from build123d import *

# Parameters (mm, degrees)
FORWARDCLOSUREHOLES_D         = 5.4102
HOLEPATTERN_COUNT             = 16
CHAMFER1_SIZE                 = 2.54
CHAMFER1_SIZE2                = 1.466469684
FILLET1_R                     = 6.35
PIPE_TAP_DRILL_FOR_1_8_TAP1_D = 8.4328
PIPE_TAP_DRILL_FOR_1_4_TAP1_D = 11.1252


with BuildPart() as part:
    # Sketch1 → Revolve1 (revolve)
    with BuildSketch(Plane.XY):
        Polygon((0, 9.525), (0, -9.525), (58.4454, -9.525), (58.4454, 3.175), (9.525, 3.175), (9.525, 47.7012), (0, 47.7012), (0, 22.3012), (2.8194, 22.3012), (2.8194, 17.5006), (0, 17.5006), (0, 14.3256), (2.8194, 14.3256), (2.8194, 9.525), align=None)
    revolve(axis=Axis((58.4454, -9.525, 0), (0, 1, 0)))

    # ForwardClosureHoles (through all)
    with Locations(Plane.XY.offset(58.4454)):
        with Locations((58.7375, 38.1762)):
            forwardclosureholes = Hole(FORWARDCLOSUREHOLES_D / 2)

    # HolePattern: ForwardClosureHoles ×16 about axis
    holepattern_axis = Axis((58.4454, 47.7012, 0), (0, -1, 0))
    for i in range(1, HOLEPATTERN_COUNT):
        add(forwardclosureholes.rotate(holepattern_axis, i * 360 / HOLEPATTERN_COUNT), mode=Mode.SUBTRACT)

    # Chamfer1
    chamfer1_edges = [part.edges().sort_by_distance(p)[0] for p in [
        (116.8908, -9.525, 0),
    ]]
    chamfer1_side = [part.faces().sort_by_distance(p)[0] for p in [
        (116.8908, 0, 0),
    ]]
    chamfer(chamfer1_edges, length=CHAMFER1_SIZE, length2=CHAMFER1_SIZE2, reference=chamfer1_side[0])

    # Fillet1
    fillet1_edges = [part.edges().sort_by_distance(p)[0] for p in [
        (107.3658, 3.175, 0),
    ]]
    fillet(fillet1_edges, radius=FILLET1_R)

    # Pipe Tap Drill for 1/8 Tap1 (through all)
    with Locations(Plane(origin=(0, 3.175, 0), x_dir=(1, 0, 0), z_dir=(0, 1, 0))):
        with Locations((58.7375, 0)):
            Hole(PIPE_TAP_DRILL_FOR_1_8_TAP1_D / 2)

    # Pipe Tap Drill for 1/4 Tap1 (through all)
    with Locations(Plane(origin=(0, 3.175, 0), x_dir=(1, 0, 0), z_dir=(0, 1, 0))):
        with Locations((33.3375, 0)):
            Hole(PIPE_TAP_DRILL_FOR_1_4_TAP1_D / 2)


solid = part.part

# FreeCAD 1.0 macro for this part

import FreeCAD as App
import Part
import Sketcher

V = App.Vector
Q = App.Units.Quantity


def edges_at(feature, points):
    """Names of the edges that pass closest to the given points."""
    edges = feature.Shape.Edges
    near = lambda p: min(range(len(edges)), key=lambda i: edges[i].distToShape(Part.Vertex(*p))[0])
    return sorted({f"Edge{near(p) + 1}" for p in points})


def add_polygon(sketch, points):
    """Adds a closed chain of lines whose ends are joined by coincident constraints."""
    first, n = sketch.GeometryCount, len(points)
    for a, b in zip(points, points[1:] + points[:1]):
        sketch.addGeometry(Part.LineSegment(App.Vector(*a, 0), App.Vector(*b, 0)), False)
    for i in range(n):
        sketch.addConstraint(Sketcher.Constraint("Coincident", first + i, 2, first + (i + 1) % n, 1))

doc = App.newDocument("Part")
body = doc.addObject("PartDesign::Body", "Body")

sketch1 = body.newObject("Sketcher::SketchObject", "Sketch")
sketch1.AttachmentSupport = (doc.getObject("XY_Plane"), [""])
sketch1.MapMode = "FlatFace"
add_polygon(sketch1, [(0, 9.5), (0, -9.5), (58.4, -9.5), (58.4, 3.2), (9.5, 3.2), (9.5, 47.7), (0, 47.7), (0, 22.3), (2.8, 22.3), (2.8, 17.5), (0, 17.5), (0, 14.3), (2.8, 14.3), (2.8, 9.5)])
sketch1.addGeometry(Part.LineSegment(V(58.4, -9.5, 0), V(58.4, 47.7, 0)), True)
sketch1.addConstraint([
    Sketcher.Constraint("Vertical", 0),
    Sketcher.Constraint("Horizontal", 1),
    Sketcher.Constraint("Vertical", 2),
    Sketcher.Constraint("Horizontal", 3),
    Sketcher.Constraint("Vertical", 4),
    Sketcher.Constraint("Horizontal", 5),
    Sketcher.Constraint("Vertical", 6),
    Sketcher.Constraint("Horizontal", 7),
    Sketcher.Constraint("Vertical", 8),
    Sketcher.Constraint("Horizontal", 9),
    Sketcher.Constraint("Vertical", 10),
    Sketcher.Constraint("Horizontal", 11),
    Sketcher.Constraint("Vertical", 12),
    Sketcher.Constraint("Horizontal", 13),
    Sketcher.Constraint("Vertical", 14),
    Sketcher.Constraint("Coincident", 14, 1, 1, 2),
    Sketcher.Constraint("Symmetric", 0, 2, 13, 2, -1, 1),
    Sketcher.Constraint("PointOnObject", 5, 2, -2),
    Sketcher.Constraint("PointOnObject", 9, 2, -2),
    Sketcher.Constraint("Horizontal", 5, 2, 14, 2),
    Sketcher.Constraint("Vertical", 8, 2, 11, 2),
    Sketcher.Constraint("Equal", 8, 12),
    Sketcher.Constraint("DistanceY", 6, 2, 6, 1, Q("1 in")),
    Sketcher.Constraint("DistanceY", 2, 1, 2, 2, Q("0.5 in")),
    Sketcher.Constraint("DistanceY", 0, 2, 0, 1, Q("0.75 in")),
    Sketcher.Constraint("DistanceX", 1, 1, 1, 2, Q("2.301 in")),
    Sketcher.Constraint("DistanceX", 3, 2, 3, 1, Q("1.926 in")),
    Sketcher.Constraint("DistanceX", 7, 1, 7, 2, Q("0.111 in")),
    Sketcher.Constraint("DistanceY", 4, 1, 4, 2, Q("1.753 in")),
    Sketcher.Constraint("DistanceY", 8, 2, 8, 1, Q("0.189 in")),
])
revolution = body.newObject("PartDesign::Revolution", "Revolution")
revolution.Profile = sketch1
revolution.ReferenceAxis = (sketch1, ["Axis0"])
revolution.Angle = 360

sketch2 = body.newObject("Sketcher::SketchObject", "Sketch001")
sketch2.AttachmentSupport = (doc.getObject("XY_Plane"), [""])
sketch2.MapMode = "FlatFace"
sketch2.AttachmentOffset = App.Placement(V(0, 0, 2.301 * 25.4), App.Rotation())
sketch2.addGeometry(Part.Circle(V(58.7, 38.2, 0), V(0, 0, 1), 2.7), False)
sketch2.addConstraint([
    Sketcher.Constraint("Diameter", 0, Q("0.213 in")),
    Sketcher.Constraint("DistanceX", -1, 1, 0, 3, Q("2.3125 in")),
    Sketcher.Constraint("DistanceY", -1, 1, 0, 3, Q("1.503 in")),
])
doc.recompute()
hole = body.newObject("PartDesign::Hole", "Hole")
hole.Profile = sketch2
hole.ThreadType = "None"
hole.Diameter = Q("0.213 in")
hole.DepthType = "ThroughAll"
doc.recompute()

datumline = body.newObject("PartDesign::Line", "DatumLine")
datumline.Placement = App.Placement(V(58.4454, 0, 0), App.Rotation(V(0, 0, 1), V(0, -1, 0)))
polarpattern = body.newObject("PartDesign::PolarPattern", "PolarPattern")
polarpattern.Originals = [hole]
polarpattern.Axis = (datumline, [""])
polarpattern.Angle = 360
polarpattern.Occurrences = 16
body.Tip = polarpattern
doc.recompute()

chamfer = body.newObject("PartDesign::Chamfer", "Chamfer")
chamfer.Base = (polarpattern, edges_at(polarpattern, [(116.891, -9.525, 0)]))
chamfer.ChamferType = "Two distances"
chamfer.Size = Q("0.1 in")
chamfer.Size2 = 1.46647
doc.recompute()

fillet = body.newObject("PartDesign::Fillet", "Fillet")
fillet.Base = (chamfer, edges_at(chamfer, [(107.366, 3.175, 0)]))
fillet.Radius = Q("0.25 in")

sketch3 = body.newObject("Sketcher::SketchObject", "Sketch002")
sketch3.AttachmentSupport = (doc.getObject("XZ_Plane"), [""])
sketch3.MapMode = "FlatFace"
sketch3.AttachmentOffset = App.Placement(V(0, 0, -0.125 * 25.4), App.Rotation())
sketch3.addGeometry(Part.Circle(V(58.7, 0, 0), V(0, 0, 1), 4.2), False)
sketch3.addConstraint([
    Sketcher.Constraint("PointOnObject", 0, 3, -1),
    Sketcher.Constraint("Diameter", 0, Q("0.332 in")),
    Sketcher.Constraint("DistanceX", -1, 1, 0, 3, Q("2.3125 in")),
])
doc.recompute()
hole2 = body.newObject("PartDesign::Hole", "Hole001")
hole2.Profile = sketch3
hole2.ThreadType = "None"
hole2.Diameter = Q("0.332 in")
hole2.DepthType = "ThroughAll"
hole2.Reversed = True

sketch4 = body.newObject("Sketcher::SketchObject", "Sketch003")
sketch4.AttachmentSupport = (doc.getObject("XZ_Plane"), [""])
sketch4.MapMode = "FlatFace"
sketch4.AttachmentOffset = App.Placement(V(0, 0, -0.125 * 25.4), App.Rotation())
sketch4.addGeometry(Part.Circle(V(33, 0, 0), V(0, 0, 1), 6), False)
sketch4.addConstraint([
    Sketcher.Constraint("PointOnObject", 0, 3, -1),
    Sketcher.Constraint("Diameter", 0, Q("0.438 in")),
    Sketcher.Constraint("DistanceX", -1, 1, 0, 3, Q("1.3125 in")),
])
doc.recompute()
hole3 = body.newObject("PartDesign::Hole", "Hole002")
hole3.Profile = sketch4
hole3.ThreadType = "None"
hole3.Diameter = Q("0.438 in")
hole3.DepthType = "ThroughAll"
hole3.Reversed = True

doc.recompute()
